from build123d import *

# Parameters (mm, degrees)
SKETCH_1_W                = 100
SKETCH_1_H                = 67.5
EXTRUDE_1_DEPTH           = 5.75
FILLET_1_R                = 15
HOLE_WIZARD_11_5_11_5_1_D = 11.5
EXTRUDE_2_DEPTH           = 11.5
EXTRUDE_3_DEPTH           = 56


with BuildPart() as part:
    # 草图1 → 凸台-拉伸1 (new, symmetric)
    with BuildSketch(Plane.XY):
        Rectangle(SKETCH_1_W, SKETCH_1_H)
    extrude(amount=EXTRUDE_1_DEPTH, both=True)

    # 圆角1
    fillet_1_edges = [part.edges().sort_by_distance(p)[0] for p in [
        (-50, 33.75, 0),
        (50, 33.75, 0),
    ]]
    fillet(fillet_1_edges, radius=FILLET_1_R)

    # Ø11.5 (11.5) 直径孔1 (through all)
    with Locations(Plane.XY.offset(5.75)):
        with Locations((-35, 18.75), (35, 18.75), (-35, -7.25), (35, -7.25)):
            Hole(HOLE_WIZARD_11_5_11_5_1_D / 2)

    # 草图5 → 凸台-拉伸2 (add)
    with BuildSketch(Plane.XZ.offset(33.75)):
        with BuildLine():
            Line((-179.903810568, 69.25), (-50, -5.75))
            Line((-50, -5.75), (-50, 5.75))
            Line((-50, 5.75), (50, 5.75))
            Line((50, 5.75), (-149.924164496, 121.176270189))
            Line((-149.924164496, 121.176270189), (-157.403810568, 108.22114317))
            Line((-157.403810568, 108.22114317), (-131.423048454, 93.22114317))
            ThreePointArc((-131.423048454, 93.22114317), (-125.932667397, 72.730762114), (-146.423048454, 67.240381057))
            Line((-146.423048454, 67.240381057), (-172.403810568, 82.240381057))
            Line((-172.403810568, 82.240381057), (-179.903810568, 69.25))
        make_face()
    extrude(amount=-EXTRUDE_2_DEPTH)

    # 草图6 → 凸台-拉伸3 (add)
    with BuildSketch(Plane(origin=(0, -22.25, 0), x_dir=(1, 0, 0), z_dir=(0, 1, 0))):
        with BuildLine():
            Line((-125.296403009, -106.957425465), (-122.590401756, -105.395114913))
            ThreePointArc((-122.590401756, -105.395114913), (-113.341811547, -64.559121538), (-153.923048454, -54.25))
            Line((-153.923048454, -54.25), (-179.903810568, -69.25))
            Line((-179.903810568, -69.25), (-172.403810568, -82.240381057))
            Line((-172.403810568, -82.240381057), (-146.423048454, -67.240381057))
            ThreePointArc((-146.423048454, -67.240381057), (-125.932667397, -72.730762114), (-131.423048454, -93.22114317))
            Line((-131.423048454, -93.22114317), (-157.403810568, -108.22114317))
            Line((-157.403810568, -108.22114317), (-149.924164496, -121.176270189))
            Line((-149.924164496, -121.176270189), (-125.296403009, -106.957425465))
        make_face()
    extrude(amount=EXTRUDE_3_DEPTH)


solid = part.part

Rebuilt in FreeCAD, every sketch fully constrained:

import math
import FreeCAD as App
import Part
import Sketcher

V = App.Vector
Q = App.Units.Quantity


def edges_at(feature, points):
    """Names of the edges that pass closest to the given points."""
    edges = feature.Shape.Edges
    near = lambda p: min(range(len(edges)), key=lambda i: edges[i].distToShape(Part.Vertex(*p))[0])
    return sorted({f"Edge{near(p) + 1}" for p in points})

doc = App.newDocument("Part")
body = doc.addObject("PartDesign::Body", "Body")

# Sketch on XY plane
sketch1 = body.newObject("Sketcher::SketchObject", "Sketch")
sketch1.AttachmentSupport = (doc.getObject("XY_Plane"), [""])
sketch1.MapMode = "FlatFace"
sketch1.addGeometry([
    Part.LineSegment(V(-50, 34, 0), V(-50, -34, 0)),
    Part.LineSegment(V(-50, -34, 0), V(50, -34, 0)),
    Part.LineSegment(V(50, -34, 0), V(50, 34, 0)),
    Part.LineSegment(V(50, 34, 0), V(-50, 34, 0)),
], False)
sketch1.addConstraint([
    Sketcher.Constraint("Coincident", 0, 2, 1, 1),
    Sketcher.Constraint("Coincident", 1, 2, 2, 1),
    Sketcher.Constraint("Coincident", 2, 2, 3, 1),
    Sketcher.Constraint("Coincident", 3, 2, 0, 1),
    Sketcher.Constraint("Vertical", 0),
    Sketcher.Constraint("Horizontal", 1),
    Sketcher.Constraint("Vertical", 2),
    Sketcher.Constraint("Horizontal", 3),
    Sketcher.Constraint("Symmetric", 0, 2, 2, 2, -1, 1),
    Sketcher.Constraint("DistanceX", 1, 1, 1, 2, Q("100 mm")),
    Sketcher.Constraint("DistanceY", 0, 2, 0, 1, Q("67.5 mm")),
])
pad1 = body.newObject("PartDesign::Pad", "Pad")
pad1.Profile = sketch1
pad1.Length = 11.5
pad1.Midplane = True
doc.recompute()

fillet = body.newObject("PartDesign::Fillet", "Fillet")
fillet.Base = (pad1, edges_at(pad1, [(-50, 33.75, 0), (50, 33.75, 0)]))
fillet.Radius = 15

# Sketch on XY plane
sketch2 = body.newObject("Sketcher::SketchObject", "Sketch001")
sketch2.AttachmentSupport = (doc.getObject("XY_Plane"), [""])
sketch2.MapMode = "FlatFace"
sketch2.AttachmentOffset = App.Placement(V(0, 0, 5.75), App.Rotation())
sketch2.addGeometry([
    Part.Circle(V(-35, 19, 0), V(0, 0, 1), 6),
    Part.Circle(V(35, 19, 0), V(0, 0, 1), 6),
    Part.Circle(V(-35, -7, 0), V(0, 0, 1), 6),
    Part.Circle(V(35, -7, 0), V(0, 0, 1), 6),
], False)
sketch2.addConstraint([
    Sketcher.Constraint("Equal", 0, 1),
    Sketcher.Constraint("Equal", 1, 2),
    Sketcher.Constraint("Equal", 2, 3),
    Sketcher.Constraint("Symmetric", 0, 3, 1, 3, -2),
    Sketcher.Constraint("Symmetric", 2, 3, 3, 3, -2),
    Sketcher.Constraint("Vertical", 0, 3, 2, 3),
    Sketcher.Constraint("Diameter", 0, Q("11.5 mm")),
    Sketcher.Constraint("DistanceX", 0, 3, -1, 1, Q("35 mm")),
    Sketcher.Constraint("DistanceY", 2, 3, 0, 3, Q("26 mm")),
    Sketcher.Constraint("DistanceY", -1, 1, 0, 3, Q("18.75 mm")),
])
doc.recompute()
hole = body.newObject("PartDesign::Hole", "Hole")
hole.Profile = sketch2
hole.ThreadType = "None"
hole.Diameter = 11.5
hole.DepthType = "ThroughAll"

# Sketch on XZ plane
sketch3 = body.newObject("Sketcher::SketchObject", "Sketch002")
sketch3.AttachmentSupport = (doc.getObject("XZ_Plane"), [""])
sketch3.MapMode = "FlatFace"
sketch3.AttachmentOffset = App.Placement(V(0, 0, 33.75), App.Rotation())
sketch3.addGeometry([
    Part.LineSegment(V(-180, 69, 0), V(-50, -6, 0)),  # 0
    Part.LineSegment(V(-50, -6, 0), V(-50, 6, 0)),  # 1
    Part.LineSegment(V(-50, 6, 0), V(50, 6, 0)),  # 2
    Part.LineSegment(V(50, 6, 0), V(-150, 121, 0)),  # 3
    Part.LineSegment(V(-150, 121, 0), V(-157, 108, 0)),  # 4
    Part.LineSegment(V(-157, 108, 0), V(-131, 93, 0)),  # 5
    Part.ArcOfCircle(Part.Circle(V(-139, 80, 0), V(0, 0, 1), 15), math.radians(-120), math.radians(60)),  # 6
    Part.LineSegment(V(-146, 67, 0), V(-172, 82, 0)),  # 7
    Part.LineSegment(V(-172, 82, 0), V(-180, 69, 0)),  # 8
], False)
sketch3.addConstraint([
    Sketcher.Constraint("Coincident", 0, 2, 1, 1),
    Sketcher.Constraint("Coincident", 1, 2, 2, 1),
    Sketcher.Constraint("Coincident", 2, 2, 3, 1),
    Sketcher.Constraint("Coincident", 3, 2, 4, 1),
    Sketcher.Constraint("Coincident", 4, 2, 5, 1),
    Sketcher.Constraint("Tangent", 5, 2, 6, 2),
    Sketcher.Constraint("Tangent", 6, 1, 7, 1),
    Sketcher.Constraint("Coincident", 7, 2, 8, 1),
    Sketcher.Constraint("Coincident", 8, 2, 0, 1),
    Sketcher.Constraint("Vertical", 1),
    Sketcher.Constraint("Horizontal", 2),
    Sketcher.Constraint("Symmetric", 0, 2, 2, 2, -1, 1),
    Sketcher.Constraint("Parallel", 0, 3),
    Sketcher.Constraint("Perpendicular", 3, 4),
    Sketcher.Constraint("Perpendicular", 4, 5),
    Sketcher.Constraint("Parallel", 5, 7),
    Sketcher.Constraint("Perpendicular", 7, 8),
    Sketcher.Constraint("Equal", 5, 7),
    Sketcher.Constraint("Radius", 6, Q("15 mm")),
    Sketcher.Constraint("DistanceX", 2, 1, 2, 2, Q("100 mm")),
    Sketcher.Constraint("Angle", 0, Q("-30 deg")),
    Sketcher.Constraint("Distance", 0, Q("150 mm")),
    Sketcher.Constraint("Distance", 5, Q("30 mm")),
    Sketcher.Constraint("Distance", 8, Q("15 mm")),
    Sketcher.Constraint("DistanceY", 1, 1, 1, 2, Q("11.5 mm")),
])
pad2 = body.newObject("PartDesign::Pad", "Pad001")
pad2.Profile = sketch3
pad2.Length = 11.5
pad2.Reversed = True

# Sketch on XZ plane
sketch4 = body.newObject("Sketcher::SketchObject", "Sketch003")
sketch4.AttachmentSupport = (doc.getObject("XZ_Plane"), [""])
sketch4.MapMode = "FlatFace"
sketch4.AttachmentOffset = App.Placement(V(0, 0, 22.25), App.Rotation())
sketch4.addGeometry([
    Part.LineSegment(V(-125.3, 107, 0), V(-122.6, 105.4, 0)),  # 0
    Part.ArcOfCircle(Part.Circle(V(-138.9, 80.2, 0), V(0, 0, 1), 30), math.radians(-120), math.radians(57)),  # 1
    Part.LineSegment(V(-153.9, 54.2, 0), V(-179.9, 69.2, 0)),  # 2
    Part.LineSegment(V(-179.9, 69.2, 0), V(-172.4, 82.2, 0)),  # 3
    Part.LineSegment(V(-172.4, 82.2, 0), V(-146.4, 67.2, 0)),  # 4
    Part.ArcOfCircle(Part.Circle(V(-138.9, 80.2, 0), V(0, 0, 1), 15), math.radians(-120), math.radians(60)),  # 5
    Part.LineSegment(V(-131.4, 93.2, 0), V(-157.4, 108.2, 0)),  # 6
    Part.LineSegment(V(-157.4, 108.2, 0), V(-149.9, 121.2, 0)),  # 7
    Part.LineSegment(V(-149.9, 121.2, 0), V(-125.3, 107, 0)),  # 8
], False)
sketch4.addConstraint([
    Sketcher.Constraint("Coincident", 0, 2, 1, 2),
    Sketcher.Constraint("Tangent", 1, 1, 2, 1),
    Sketcher.Constraint("Coincident", 2, 2, 3, 1),
    Sketcher.Constraint("Coincident", 3, 2, 4, 1),
    Sketcher.Constraint("Tangent", 4, 2, 5, 1),
    Sketcher.Constraint("Tangent", 5, 2, 6, 1),
    Sketcher.Constraint("Coincident", 6, 2, 7, 1),
    Sketcher.Constraint("Coincident", 7, 2, 8, 1),
    Sketcher.Constraint("Coincident", 8, 2, 0, 1),
    Sketcher.Constraint("Coincident", 5, 3, 1, 3),
    Sketcher.Constraint("Parallel", 0, 2),
    Sketcher.Constraint("Perpendicular", 2, 3),
    Sketcher.Constraint("Perpendicular", 3, 4),
    Sketcher.Constraint("Parallel", 4, 6),
    Sketcher.Constraint("Perpendicular", 6, 7),
    Sketcher.Constraint("Perpendicular", 7, 8),
    Sketcher.Constraint("Equal", 4, 6),
    Sketcher.Constraint("Radius", 1, Q("30 mm")),
    Sketcher.Constraint("Radius", 5, Q("15 mm")),
    Sketcher.Constraint("Angle", 0, Q("-30 deg")),
    Sketcher.Constraint("Distance", 2, Q("30 mm")),
    Sketcher.Constraint("DistanceY", -1, 1, 1, 1, Q("54.25 mm")),
    Sketcher.Constraint("DistanceX", 8, 2, 0, 2, Q("2.706001 mm")),
    Sketcher.Constraint("DistanceX", 0, 2, -1, 1, Q("122.590402 mm")),
    Sketcher.Constraint("Distance", 8, Q("28.437689 mm")),
])
pad3 = body.newObject("PartDesign::Pad", "Pad002")
pad3.Profile = sketch4
pad3.Length = 56
pad3.Reversed = True

doc.recompute()
